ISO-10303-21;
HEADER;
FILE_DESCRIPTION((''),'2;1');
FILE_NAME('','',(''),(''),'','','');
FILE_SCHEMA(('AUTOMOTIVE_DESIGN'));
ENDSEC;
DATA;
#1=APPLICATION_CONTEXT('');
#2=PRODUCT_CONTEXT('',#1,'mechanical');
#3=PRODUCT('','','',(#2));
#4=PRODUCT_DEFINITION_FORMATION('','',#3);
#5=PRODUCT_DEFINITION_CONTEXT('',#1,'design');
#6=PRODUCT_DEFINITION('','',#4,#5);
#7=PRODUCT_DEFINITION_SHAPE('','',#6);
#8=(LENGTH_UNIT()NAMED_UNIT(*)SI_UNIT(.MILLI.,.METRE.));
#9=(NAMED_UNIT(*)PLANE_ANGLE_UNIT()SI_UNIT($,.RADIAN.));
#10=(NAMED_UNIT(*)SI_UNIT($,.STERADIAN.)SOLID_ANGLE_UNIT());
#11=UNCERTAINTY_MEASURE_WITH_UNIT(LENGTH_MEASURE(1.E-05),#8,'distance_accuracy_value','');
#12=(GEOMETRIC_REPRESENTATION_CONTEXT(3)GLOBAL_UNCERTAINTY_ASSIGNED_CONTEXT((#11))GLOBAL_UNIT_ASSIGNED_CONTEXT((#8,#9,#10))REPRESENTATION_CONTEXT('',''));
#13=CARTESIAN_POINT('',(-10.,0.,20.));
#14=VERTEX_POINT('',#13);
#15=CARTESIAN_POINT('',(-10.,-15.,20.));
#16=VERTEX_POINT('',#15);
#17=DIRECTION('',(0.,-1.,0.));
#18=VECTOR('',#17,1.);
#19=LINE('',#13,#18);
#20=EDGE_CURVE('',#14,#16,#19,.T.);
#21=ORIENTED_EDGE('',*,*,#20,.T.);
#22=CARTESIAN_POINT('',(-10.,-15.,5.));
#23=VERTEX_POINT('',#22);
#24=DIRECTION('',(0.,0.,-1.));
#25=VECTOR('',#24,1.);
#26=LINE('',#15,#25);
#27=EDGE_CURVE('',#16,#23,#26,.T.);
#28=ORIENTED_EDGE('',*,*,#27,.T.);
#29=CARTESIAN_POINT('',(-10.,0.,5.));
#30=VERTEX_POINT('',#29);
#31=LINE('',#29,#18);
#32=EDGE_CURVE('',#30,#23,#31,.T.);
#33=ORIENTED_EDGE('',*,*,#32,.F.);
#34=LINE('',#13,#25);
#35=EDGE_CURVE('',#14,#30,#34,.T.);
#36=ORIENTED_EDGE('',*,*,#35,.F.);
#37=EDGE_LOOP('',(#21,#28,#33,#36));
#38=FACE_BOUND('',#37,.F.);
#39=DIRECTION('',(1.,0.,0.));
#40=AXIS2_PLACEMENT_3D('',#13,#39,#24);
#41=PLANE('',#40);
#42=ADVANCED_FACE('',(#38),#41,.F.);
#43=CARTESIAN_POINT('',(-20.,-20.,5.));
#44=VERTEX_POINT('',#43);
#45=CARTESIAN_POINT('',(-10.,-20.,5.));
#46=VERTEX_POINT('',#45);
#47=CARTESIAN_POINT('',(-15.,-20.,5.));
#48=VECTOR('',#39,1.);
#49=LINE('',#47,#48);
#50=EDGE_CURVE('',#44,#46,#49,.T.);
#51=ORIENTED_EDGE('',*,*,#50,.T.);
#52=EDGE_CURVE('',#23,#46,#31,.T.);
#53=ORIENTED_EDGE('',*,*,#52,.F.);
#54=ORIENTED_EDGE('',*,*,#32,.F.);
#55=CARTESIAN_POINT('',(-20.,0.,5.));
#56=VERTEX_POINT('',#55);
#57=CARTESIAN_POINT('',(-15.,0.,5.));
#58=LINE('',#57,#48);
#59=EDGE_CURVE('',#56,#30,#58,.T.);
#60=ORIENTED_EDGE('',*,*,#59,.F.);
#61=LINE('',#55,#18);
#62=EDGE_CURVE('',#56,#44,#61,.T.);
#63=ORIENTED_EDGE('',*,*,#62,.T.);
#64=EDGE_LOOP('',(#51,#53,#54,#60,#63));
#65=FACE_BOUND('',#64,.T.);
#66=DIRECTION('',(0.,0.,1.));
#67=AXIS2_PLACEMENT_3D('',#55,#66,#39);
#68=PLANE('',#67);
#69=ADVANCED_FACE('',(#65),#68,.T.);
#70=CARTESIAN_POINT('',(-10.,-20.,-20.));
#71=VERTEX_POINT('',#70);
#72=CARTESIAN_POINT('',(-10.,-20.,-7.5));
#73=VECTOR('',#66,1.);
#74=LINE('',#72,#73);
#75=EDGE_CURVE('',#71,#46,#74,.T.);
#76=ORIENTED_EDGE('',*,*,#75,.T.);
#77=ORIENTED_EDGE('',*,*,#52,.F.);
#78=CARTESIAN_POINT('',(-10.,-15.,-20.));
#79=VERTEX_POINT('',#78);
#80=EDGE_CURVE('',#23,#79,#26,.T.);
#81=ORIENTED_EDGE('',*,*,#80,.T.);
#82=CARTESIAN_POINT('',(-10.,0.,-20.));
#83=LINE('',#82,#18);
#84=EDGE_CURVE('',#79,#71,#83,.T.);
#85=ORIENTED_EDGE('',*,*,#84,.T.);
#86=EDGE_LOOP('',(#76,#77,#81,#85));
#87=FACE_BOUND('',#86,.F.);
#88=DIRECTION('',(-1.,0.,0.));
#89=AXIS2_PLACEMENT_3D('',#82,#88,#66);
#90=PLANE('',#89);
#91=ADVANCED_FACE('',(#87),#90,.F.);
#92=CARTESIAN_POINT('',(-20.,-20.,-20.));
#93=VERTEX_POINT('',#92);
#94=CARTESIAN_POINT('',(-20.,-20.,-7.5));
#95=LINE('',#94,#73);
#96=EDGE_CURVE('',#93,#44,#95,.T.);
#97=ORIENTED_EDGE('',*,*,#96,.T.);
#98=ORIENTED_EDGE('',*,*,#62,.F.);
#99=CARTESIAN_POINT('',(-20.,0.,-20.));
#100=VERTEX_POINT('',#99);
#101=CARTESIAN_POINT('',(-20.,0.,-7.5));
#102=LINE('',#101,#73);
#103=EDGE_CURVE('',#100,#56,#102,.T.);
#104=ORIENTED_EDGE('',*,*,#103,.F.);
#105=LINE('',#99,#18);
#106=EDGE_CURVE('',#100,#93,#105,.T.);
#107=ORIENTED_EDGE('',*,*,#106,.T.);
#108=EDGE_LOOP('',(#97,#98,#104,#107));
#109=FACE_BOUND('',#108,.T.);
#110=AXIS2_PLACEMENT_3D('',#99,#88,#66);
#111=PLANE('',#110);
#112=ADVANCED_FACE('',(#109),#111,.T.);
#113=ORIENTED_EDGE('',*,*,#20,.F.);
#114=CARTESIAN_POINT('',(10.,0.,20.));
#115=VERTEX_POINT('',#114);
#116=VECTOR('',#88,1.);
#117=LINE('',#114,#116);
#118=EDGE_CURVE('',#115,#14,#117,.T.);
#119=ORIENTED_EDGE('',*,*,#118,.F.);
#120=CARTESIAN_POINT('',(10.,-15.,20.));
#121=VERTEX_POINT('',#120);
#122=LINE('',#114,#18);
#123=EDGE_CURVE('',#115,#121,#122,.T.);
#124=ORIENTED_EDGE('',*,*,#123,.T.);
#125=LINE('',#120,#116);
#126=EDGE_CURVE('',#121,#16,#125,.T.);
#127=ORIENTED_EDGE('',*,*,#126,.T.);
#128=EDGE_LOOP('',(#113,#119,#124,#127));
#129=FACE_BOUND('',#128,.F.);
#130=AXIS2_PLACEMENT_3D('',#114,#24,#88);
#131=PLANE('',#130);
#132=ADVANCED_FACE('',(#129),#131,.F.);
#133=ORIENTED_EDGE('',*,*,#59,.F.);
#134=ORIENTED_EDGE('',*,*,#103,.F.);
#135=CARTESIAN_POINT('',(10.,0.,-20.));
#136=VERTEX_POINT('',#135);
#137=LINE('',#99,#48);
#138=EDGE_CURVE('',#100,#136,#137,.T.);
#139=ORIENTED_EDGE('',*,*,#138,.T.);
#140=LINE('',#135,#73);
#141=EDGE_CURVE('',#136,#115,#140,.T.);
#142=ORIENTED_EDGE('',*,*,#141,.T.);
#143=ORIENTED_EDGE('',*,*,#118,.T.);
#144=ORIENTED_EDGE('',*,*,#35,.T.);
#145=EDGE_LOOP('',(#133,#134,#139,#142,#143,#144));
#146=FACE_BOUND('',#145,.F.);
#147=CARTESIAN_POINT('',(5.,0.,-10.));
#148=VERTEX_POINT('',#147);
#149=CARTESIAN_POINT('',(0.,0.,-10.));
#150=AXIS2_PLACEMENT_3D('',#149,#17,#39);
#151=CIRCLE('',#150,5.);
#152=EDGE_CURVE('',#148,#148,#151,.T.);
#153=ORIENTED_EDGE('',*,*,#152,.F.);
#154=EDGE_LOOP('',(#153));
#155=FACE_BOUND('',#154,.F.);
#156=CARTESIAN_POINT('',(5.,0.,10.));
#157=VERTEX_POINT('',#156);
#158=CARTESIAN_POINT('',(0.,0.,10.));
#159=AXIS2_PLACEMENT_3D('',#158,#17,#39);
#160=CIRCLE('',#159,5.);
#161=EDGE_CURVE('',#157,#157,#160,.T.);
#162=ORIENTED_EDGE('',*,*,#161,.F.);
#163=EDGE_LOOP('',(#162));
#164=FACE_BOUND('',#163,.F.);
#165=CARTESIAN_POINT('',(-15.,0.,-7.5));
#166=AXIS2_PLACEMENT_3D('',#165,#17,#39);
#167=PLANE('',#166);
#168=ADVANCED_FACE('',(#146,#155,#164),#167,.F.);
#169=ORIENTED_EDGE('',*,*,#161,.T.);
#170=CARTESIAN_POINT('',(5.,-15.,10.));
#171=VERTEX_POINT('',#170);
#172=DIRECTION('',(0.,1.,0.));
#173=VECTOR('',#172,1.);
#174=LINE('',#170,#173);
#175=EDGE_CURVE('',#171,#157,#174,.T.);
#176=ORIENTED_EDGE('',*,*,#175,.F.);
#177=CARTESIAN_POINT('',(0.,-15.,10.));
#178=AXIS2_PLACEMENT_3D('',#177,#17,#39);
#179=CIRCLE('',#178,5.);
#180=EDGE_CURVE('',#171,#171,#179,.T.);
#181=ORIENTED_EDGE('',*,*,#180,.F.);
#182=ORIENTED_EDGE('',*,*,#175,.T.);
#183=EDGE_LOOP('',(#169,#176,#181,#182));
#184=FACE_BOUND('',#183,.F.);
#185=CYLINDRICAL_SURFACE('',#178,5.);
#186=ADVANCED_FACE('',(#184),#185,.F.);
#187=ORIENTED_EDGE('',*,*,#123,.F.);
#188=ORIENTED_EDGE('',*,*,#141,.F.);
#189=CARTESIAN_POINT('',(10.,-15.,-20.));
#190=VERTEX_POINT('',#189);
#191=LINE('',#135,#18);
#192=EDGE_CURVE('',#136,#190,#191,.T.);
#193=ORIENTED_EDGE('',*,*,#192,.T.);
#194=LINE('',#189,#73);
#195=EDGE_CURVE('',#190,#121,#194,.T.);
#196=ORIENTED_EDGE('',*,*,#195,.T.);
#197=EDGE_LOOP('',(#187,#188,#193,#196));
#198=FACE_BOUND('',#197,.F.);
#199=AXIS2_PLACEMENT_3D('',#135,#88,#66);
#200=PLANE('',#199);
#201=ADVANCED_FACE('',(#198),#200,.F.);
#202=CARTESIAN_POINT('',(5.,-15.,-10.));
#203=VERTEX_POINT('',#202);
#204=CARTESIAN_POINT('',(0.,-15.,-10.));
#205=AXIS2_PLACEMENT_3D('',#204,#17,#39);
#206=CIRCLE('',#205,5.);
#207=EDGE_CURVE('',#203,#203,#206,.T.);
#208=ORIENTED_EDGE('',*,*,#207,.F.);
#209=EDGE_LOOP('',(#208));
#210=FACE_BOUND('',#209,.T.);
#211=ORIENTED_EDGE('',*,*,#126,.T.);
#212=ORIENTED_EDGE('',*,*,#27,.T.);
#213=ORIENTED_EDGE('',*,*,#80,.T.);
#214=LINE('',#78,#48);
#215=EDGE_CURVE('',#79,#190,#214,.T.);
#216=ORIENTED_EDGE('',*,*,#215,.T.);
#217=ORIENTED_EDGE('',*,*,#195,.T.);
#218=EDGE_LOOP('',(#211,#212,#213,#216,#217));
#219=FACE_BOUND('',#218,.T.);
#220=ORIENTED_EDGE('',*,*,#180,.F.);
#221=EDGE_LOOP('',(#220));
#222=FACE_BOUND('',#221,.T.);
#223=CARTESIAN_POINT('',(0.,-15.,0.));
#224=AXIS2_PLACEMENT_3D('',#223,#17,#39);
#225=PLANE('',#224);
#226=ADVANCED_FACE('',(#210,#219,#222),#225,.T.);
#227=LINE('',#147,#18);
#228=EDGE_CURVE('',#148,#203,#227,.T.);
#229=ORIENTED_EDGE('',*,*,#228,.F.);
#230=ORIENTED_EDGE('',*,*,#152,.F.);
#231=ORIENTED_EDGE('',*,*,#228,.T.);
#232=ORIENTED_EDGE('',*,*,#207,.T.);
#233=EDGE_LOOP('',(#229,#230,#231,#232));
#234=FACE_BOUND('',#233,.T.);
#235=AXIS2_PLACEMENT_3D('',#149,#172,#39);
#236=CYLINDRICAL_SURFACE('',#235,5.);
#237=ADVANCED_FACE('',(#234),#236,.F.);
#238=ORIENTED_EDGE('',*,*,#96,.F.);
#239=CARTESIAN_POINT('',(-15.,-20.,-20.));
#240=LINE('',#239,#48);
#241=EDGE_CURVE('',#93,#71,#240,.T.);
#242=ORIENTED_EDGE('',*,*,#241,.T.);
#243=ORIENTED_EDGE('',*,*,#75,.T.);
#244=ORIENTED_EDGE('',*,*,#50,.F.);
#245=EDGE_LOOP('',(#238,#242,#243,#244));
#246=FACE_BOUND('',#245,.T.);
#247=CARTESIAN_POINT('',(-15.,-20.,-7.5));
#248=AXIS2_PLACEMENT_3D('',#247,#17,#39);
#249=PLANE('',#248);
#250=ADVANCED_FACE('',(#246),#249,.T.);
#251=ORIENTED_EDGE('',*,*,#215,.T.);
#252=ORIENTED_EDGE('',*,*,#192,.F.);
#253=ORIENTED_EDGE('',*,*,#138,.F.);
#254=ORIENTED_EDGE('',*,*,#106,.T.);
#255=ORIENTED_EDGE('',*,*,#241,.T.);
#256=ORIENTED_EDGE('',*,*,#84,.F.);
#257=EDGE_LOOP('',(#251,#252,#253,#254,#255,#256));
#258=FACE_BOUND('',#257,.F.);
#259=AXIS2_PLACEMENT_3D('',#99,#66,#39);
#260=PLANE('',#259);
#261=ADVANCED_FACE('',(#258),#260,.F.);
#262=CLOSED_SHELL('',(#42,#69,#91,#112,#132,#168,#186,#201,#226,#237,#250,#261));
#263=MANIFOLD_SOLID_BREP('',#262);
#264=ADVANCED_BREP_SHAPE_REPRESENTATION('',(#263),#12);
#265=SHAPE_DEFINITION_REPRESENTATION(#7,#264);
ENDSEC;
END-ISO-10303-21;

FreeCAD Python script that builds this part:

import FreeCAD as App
import Part
import Sketcher

V = App.Vector

doc = App.newDocument("Part")
params = doc.addObject("Spreadsheet::Sheet", "Params")
for row, (alias, value) in enumerate([
    ("sketch1_diameter", "10 mm"),
    ("sketch1_width", "20 mm"),
    ("sketch1_height", "40 mm"),
    ("pad1_length", "15 mm"),
    ("sketch2_width", "10 mm"),
    ("sketch2_height", "25 mm"),
    ("pad2_length", "20 mm"),
    ("sketch3_diameter", "10 mm"),
], start=1):
    params.set(f"A{row}", alias)
    params.set(f"B{row}", "=" + value)
    params.setAlias(f"B{row}", alias)

body = doc.addObject("PartDesign::Body", "Body")

sketch1 = body.newObject("Sketcher::SketchObject", "Sketch")
sketch1.AttachmentSupport = (doc.getObject("XZ_Plane"), [""])
sketch1.MapMode = "FlatFace"
sketch1.addGeometry([
    Part.LineSegment(V(10, -20, 0), V(10, 20, 0)),
    Part.LineSegment(V(10, 20, 0), V(-10, 20, 0)),
    Part.LineSegment(V(-10, 20, 0), V(-10, -20, 0)),
    Part.LineSegment(V(-10, -20, 0), V(10, -20, 0)),
    Part.Circle(V(0, -10, 0), V(0, 0, 1), 5),
], False)
sketch1.addConstraint([
    Sketcher.Constraint("Coincident", 0, 2, 1, 1),
    Sketcher.Constraint("Coincident", 1, 2, 2, 1),
    Sketcher.Constraint("Coincident", 2, 2, 3, 1),
    Sketcher.Constraint("Coincident", 3, 2, 0, 1),
    Sketcher.Constraint("Vertical", 0),
    Sketcher.Constraint("Horizontal", 1),
    Sketcher.Constraint("Vertical", 2),
    Sketcher.Constraint("Horizontal", 3),
    Sketcher.Constraint("Symmetric", 0, 2, 2, 2, -1, 1),
    Sketcher.Constraint("PointOnObject", 4, 3, -2),
    Sketcher.Constraint("Diameter", 4, 10.0),
    Sketcher.Constraint("DistanceX", 1, 2, 1, 1, 20.0),
    Sketcher.Constraint("DistanceY", 0, 1, 0, 2, 40.0),
    Sketcher.Constraint("DistanceY", 4, 3, -1, 1, 10.0),
])
sketch1.setExpression("Constraints[10]", "Params.sketch1_diameter")
sketch1.setExpression("Constraints[11]", "Params.sketch1_width")
sketch1.setExpression("Constraints[12]", "Params.sketch1_height")
pad1 = body.newObject("PartDesign::Pad", "Pad")
pad1.Profile = sketch1
pad1.setExpression("Length", "Params.pad1_length")

sketch2 = body.newObject("Sketcher::SketchObject", "Sketch001")
sketch2.AttachmentSupport = (doc.getObject("XZ_Plane"), [""])
sketch2.MapMode = "FlatFace"
sketch2.addGeometry([
    Part.LineSegment(V(-20, 5, 0), V(-20, -20, 0)),
    Part.LineSegment(V(-20, -20, 0), V(-10, -20, 0)),
    Part.LineSegment(V(-10, -20, 0), V(-10, 5, 0)),
    Part.LineSegment(V(-10, 5, 0), V(-20, 5, 0)),
], False)
sketch2.addConstraint([
    Sketcher.Constraint("Coincident", 0, 2, 1, 1),
    Sketcher.Constraint("Coincident", 1, 2, 2, 1),
    Sketcher.Constraint("Coincident", 2, 2, 3, 1),
    Sketcher.Constraint("Coincident", 3, 2, 0, 1),
    Sketcher.Constraint("Vertical", 0),
    Sketcher.Constraint("Horizontal", 1),
    Sketcher.Constraint("Vertical", 2),
    Sketcher.Constraint("Horizontal", 3),
    Sketcher.Constraint("DistanceX", 1, 1, 1, 2, 10.0),
    Sketcher.Constraint("DistanceY", 0, 2, 0, 1, 25.0),
    Sketcher.Constraint("DistanceX", 0, 2, -1, 1, 20.0),
    Sketcher.Constraint("DistanceY", 0, 2, -1, 1, 20.0),
])
sketch2.setExpression("Constraints[8]", "Params.sketch2_width")
sketch2.setExpression("Constraints[9]", "Params.sketch2_height")
pad2 = body.newObject("PartDesign::Pad", "Pad001")
pad2.Profile = sketch2
pad2.setExpression("Length", "Params.pad2_length")

sketch3 = body.newObject("Sketcher::SketchObject", "Sketch002")
sketch3.AttachmentSupport = (doc.getObject("XZ_Plane"), [""])
sketch3.MapMode = "FlatFace"
sketch3.AttachmentOffset = App.Placement(V(0, 0, 15), App.Rotation())
sketch3.addGeometry(Part.Circle(V(0, 10, 0), V(0, 0, 1), 5), False)
sketch3.addConstraint([
    Sketcher.Constraint("PointOnObject", 0, 3, -2),
    Sketcher.Constraint("Diameter", 0, 10.0),
    Sketcher.Constraint("DistanceY", -1, 1, 0, 3, 10.0),
])
sketch3.setExpression("Constraints[1]", "Params.sketch3_diameter")
pocket1 = body.newObject("PartDesign::Pocket", "Pocket")
pocket1.Profile = sketch3
pocket1.Type = "ThroughAll"

doc.recompute()
